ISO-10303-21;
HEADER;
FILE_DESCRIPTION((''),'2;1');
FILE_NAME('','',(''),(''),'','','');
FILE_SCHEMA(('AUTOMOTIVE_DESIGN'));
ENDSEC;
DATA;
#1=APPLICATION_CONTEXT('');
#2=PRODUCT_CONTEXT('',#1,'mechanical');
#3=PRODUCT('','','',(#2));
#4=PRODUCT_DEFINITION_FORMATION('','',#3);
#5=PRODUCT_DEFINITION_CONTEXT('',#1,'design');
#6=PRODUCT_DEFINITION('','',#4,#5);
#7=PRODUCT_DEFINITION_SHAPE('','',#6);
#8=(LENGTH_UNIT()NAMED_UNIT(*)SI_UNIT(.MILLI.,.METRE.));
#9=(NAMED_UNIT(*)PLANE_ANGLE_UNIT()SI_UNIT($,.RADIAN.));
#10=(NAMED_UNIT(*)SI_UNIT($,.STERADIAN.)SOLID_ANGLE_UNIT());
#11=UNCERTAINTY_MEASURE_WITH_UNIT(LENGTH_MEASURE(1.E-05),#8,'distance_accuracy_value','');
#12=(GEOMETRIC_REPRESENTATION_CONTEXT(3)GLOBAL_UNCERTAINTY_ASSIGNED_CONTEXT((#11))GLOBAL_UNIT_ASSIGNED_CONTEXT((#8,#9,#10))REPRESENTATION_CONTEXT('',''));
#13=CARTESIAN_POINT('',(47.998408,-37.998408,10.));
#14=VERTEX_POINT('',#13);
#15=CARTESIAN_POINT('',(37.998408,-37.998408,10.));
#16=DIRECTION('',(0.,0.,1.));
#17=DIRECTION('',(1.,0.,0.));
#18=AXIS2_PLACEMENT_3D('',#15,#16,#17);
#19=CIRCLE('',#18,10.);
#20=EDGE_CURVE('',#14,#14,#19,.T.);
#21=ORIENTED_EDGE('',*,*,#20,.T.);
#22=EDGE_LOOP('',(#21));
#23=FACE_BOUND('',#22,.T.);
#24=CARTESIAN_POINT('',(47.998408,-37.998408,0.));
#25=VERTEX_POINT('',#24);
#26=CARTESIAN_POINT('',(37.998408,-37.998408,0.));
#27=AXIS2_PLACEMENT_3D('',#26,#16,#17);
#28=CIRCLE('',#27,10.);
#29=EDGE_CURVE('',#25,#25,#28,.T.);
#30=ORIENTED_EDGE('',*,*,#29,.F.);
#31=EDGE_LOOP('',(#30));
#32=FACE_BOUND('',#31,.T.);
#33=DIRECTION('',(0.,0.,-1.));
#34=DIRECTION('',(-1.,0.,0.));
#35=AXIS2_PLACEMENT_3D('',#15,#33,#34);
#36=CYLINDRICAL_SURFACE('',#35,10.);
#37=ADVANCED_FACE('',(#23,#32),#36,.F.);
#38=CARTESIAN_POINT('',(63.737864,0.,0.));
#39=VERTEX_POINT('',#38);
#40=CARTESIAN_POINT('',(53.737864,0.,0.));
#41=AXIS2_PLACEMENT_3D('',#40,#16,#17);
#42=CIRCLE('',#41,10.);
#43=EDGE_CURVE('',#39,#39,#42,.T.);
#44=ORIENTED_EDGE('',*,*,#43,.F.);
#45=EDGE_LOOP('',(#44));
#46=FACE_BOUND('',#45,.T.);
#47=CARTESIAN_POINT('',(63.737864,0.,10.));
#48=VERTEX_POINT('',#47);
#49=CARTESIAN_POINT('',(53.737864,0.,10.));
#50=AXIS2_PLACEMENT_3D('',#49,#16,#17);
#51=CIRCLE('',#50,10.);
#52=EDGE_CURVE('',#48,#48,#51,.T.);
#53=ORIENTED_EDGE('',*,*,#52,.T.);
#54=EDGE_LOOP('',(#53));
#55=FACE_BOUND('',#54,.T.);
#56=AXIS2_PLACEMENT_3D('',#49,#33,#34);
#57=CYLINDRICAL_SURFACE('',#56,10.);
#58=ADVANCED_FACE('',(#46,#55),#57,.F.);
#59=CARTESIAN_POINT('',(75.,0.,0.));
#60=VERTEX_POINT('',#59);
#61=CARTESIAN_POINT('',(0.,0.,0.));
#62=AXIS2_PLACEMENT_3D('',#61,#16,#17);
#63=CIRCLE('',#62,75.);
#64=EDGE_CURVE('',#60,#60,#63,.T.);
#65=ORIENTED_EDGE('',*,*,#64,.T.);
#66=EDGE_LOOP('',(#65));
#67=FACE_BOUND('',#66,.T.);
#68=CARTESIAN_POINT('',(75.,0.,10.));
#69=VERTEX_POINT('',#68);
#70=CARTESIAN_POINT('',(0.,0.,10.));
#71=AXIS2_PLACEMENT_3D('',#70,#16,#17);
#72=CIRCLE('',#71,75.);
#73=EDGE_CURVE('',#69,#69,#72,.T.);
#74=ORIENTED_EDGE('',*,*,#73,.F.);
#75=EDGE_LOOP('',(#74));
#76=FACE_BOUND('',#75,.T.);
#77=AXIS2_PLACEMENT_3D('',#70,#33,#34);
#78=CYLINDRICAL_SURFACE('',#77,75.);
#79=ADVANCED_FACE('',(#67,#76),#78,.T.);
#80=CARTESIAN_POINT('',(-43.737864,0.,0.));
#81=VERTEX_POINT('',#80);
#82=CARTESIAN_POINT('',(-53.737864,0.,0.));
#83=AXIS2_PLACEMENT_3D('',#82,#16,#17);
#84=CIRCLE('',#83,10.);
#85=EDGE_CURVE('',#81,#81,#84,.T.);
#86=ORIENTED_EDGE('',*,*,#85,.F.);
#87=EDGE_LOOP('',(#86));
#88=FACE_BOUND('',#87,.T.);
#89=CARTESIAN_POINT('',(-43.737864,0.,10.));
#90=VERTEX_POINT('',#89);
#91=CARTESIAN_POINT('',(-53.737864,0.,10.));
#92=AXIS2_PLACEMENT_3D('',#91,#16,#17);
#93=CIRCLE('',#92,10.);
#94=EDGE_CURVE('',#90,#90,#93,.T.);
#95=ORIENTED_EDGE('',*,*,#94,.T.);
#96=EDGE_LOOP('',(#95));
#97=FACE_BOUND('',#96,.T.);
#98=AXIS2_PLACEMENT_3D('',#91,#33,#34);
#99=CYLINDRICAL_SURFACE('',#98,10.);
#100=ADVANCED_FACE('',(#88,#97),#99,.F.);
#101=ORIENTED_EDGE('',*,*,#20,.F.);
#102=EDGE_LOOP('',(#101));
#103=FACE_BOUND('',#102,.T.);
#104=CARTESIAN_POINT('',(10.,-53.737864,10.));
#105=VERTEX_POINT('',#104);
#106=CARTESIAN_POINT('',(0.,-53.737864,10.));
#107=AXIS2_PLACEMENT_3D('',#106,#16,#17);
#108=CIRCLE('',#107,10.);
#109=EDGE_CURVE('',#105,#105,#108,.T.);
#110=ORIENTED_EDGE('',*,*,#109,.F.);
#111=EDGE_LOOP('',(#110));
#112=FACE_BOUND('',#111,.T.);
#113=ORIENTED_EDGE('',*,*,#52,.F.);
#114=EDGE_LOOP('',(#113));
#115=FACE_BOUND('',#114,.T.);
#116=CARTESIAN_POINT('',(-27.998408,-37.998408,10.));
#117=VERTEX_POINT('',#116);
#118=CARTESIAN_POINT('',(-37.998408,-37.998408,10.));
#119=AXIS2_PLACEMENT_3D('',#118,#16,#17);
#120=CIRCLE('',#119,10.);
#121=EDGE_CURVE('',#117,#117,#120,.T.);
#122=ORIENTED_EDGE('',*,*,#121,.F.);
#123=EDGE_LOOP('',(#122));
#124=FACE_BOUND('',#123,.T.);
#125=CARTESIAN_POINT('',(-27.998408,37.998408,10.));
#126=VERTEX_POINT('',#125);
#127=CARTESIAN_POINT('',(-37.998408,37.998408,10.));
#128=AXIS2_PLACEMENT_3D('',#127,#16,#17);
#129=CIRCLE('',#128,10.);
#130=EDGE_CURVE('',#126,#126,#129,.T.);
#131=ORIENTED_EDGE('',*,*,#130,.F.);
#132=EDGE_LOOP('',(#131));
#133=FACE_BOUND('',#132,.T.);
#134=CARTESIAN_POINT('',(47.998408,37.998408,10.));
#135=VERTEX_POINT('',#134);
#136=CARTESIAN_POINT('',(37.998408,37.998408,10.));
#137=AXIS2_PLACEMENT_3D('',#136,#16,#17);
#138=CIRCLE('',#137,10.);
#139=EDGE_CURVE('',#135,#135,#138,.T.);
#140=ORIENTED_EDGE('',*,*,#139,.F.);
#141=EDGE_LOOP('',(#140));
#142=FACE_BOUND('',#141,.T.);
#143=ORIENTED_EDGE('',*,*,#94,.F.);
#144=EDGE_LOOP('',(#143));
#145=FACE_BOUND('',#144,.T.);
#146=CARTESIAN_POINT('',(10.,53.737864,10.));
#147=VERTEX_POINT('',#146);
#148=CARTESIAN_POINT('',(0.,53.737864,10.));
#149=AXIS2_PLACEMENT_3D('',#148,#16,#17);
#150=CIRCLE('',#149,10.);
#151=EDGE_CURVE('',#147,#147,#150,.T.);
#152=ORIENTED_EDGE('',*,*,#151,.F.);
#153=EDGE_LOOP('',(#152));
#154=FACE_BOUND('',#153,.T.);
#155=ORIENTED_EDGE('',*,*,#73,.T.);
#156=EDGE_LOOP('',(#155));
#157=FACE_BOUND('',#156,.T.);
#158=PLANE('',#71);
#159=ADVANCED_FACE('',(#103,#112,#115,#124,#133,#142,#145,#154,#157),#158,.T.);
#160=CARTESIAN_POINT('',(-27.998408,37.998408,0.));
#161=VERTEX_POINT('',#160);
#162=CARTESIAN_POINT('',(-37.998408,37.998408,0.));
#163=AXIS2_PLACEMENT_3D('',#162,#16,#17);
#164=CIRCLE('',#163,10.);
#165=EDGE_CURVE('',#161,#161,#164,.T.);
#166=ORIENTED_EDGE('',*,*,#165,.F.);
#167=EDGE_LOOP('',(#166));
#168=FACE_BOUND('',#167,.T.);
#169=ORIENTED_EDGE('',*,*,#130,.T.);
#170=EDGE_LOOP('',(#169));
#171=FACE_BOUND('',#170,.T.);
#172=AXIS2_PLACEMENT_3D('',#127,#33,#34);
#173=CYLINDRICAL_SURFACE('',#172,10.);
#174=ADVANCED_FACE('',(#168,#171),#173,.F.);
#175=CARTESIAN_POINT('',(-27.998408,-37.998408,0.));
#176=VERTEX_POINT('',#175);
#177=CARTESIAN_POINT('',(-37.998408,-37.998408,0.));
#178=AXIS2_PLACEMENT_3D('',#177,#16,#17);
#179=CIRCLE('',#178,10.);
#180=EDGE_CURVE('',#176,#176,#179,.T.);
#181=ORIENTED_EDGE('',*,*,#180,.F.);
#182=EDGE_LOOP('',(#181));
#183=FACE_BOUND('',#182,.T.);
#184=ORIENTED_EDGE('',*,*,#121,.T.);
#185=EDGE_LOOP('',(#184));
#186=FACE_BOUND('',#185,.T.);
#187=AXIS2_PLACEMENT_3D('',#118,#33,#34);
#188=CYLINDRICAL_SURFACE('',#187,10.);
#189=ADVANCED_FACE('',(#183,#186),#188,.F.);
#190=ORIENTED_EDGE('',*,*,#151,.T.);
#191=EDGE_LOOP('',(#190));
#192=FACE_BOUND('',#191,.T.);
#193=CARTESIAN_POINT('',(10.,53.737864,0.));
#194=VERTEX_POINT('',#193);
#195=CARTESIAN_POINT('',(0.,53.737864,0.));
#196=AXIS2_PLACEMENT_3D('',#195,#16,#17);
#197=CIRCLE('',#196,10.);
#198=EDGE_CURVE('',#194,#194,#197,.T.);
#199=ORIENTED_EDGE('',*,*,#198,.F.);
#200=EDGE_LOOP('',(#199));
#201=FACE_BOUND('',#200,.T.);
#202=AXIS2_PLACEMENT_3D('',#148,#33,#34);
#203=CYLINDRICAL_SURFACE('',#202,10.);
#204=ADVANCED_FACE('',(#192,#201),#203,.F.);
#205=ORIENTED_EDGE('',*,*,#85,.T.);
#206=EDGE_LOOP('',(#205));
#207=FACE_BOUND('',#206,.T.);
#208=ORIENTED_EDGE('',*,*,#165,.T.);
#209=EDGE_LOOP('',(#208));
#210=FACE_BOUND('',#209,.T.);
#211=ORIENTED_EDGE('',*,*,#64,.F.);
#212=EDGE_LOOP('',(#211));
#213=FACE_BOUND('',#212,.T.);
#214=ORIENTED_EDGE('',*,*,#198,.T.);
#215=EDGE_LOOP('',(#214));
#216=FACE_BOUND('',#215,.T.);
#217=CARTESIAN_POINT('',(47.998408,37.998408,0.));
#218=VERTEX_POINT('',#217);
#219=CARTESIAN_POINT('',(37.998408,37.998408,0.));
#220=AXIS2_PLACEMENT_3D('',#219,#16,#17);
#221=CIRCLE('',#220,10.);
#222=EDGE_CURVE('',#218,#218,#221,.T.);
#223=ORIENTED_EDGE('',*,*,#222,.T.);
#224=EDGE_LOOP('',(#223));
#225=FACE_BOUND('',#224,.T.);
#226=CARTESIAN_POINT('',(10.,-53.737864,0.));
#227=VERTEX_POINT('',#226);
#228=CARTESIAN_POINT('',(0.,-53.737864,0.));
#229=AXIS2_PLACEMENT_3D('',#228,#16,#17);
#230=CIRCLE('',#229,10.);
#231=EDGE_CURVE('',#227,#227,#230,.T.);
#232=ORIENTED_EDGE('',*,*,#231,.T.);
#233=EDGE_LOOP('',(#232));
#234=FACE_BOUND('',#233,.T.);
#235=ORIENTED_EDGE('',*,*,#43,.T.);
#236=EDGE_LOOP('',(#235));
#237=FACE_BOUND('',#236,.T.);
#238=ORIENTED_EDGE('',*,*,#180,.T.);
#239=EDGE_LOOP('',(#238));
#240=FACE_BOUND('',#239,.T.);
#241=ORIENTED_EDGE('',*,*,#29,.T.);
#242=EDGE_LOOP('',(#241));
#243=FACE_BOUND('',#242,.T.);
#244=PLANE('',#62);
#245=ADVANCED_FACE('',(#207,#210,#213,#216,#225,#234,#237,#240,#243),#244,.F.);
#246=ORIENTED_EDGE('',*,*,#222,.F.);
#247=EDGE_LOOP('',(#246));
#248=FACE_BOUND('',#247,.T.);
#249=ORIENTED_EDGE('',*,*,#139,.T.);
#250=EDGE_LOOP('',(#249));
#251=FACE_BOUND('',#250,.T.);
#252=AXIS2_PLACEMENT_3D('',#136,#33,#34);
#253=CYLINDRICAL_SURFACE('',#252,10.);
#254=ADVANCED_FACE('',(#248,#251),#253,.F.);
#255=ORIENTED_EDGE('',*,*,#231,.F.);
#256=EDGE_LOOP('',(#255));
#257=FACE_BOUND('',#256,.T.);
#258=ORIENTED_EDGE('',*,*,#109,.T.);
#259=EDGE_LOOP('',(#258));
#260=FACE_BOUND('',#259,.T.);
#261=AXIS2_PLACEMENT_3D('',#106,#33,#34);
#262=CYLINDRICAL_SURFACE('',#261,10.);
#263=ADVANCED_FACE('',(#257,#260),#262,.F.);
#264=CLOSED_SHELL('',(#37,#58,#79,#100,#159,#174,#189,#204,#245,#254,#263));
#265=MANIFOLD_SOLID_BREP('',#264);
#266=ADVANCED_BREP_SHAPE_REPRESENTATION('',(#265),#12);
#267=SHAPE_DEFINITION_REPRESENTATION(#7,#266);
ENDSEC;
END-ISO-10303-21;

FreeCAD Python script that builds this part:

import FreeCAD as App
import Part
import Sketcher

V = App.Vector
Q = App.Units.Quantity

doc = App.newDocument("Part")
body = doc.addObject("PartDesign::Body", "Body")

sketch1 = doc.addObject("Sketcher::SketchObject", "Sketch")
body.addObject(sketch1)
sketch1.AttachmentSupport = (doc.XY_Plane, [""])
sketch1.MapMode = "FlatFace"
sketch1.addGeometry(Part.Circle(V(0, 0, 0), V(0, 0, 1), 75), False)
sketch1.addGeometry(Part.Circle(V(-38, -38, 0), V(0, 0, 1), 10), False)
sketch1.addGeometry(Part.Circle(V(0, -54, 0), V(0, 0, 1), 10), False)
sketch1.addGeometry(Part.Circle(V(38, -38, 0), V(0, 0, 1), 10), False)
sketch1.addGeometry(Part.Circle(V(-54, 0, 0), V(0, 0, 1), 10), False)
sketch1.addGeometry(Part.Circle(V(-38, 38, 0), V(0, 0, 1), 10), False)
sketch1.addGeometry(Part.Circle(V(54, 0, 0), V(0, 0, 1), 10), False)
sketch1.addGeometry(Part.Circle(V(0, 54, 0), V(0, 0, 1), 10), False)
sketch1.addGeometry(Part.Circle(V(38, 38, 0), V(0, 0, 1), 10), False)
sketch1.addConstraint(Sketcher.Constraint("Coincident", 0, 3, -1, 1))
sketch1.addConstraint(Sketcher.Constraint("Equal", 1, 2))
sketch1.addConstraint(Sketcher.Constraint("Equal", 2, 3))
sketch1.addConstraint(Sketcher.Constraint("Equal", 3, 4))
sketch1.addConstraint(Sketcher.Constraint("Equal", 4, 5))
sketch1.addConstraint(Sketcher.Constraint("Equal", 5, 6))
sketch1.addConstraint(Sketcher.Constraint("Equal", 6, 7))
sketch1.addConstraint(Sketcher.Constraint("Equal", 7, 8))
sketch1.addConstraint(Sketcher.Constraint("Symmetric", 3, 3, 5, 3, -1, 1))
sketch1.addConstraint(Sketcher.Constraint("Symmetric", 4, 3, 6, 3, -1, 1))
sketch1.addConstraint(Sketcher.Constraint("Symmetric", 2, 3, 7, 3, -1, 1))
sketch1.addConstraint(Sketcher.Constraint("Symmetric", 1, 3, 8, 3, -1, 1))
sketch1.addConstraint(Sketcher.Constraint("Symmetric", 1, 3, 3, 3, -2))
sketch1.addConstraint(Sketcher.Constraint("PointOnObject", 2, 3, -2))
sketch1.addConstraint(Sketcher.Constraint("PointOnObject", 4, 3, -1))
sketch1.addConstraint(Sketcher.Constraint("Diameter", 0, Q("150 mm")))
sketch1.addConstraint(Sketcher.Constraint("Diameter", 1, Q("20 mm")))
sketch1.addConstraint(Sketcher.Constraint("DistanceX", 1, 3, -1, 1, Q("37.998408 mm")))
sketch1.addConstraint(Sketcher.Constraint("DistanceY", 1, 3, -1, 1, Q("37.998408 mm")))
sketch1.addConstraint(Sketcher.Constraint("DistanceY", 2, 3, -1, 1, Q("53.737864 mm")))
sketch1.addConstraint(Sketcher.Constraint("DistanceX", 4, 3, -1, 1, Q("53.737864 mm")))
pad1 = doc.addObject("PartDesign::Pad", "Pad")
body.addObject(pad1)
pad1.Profile = sketch1
pad1.Length = 10

doc.recompute()
